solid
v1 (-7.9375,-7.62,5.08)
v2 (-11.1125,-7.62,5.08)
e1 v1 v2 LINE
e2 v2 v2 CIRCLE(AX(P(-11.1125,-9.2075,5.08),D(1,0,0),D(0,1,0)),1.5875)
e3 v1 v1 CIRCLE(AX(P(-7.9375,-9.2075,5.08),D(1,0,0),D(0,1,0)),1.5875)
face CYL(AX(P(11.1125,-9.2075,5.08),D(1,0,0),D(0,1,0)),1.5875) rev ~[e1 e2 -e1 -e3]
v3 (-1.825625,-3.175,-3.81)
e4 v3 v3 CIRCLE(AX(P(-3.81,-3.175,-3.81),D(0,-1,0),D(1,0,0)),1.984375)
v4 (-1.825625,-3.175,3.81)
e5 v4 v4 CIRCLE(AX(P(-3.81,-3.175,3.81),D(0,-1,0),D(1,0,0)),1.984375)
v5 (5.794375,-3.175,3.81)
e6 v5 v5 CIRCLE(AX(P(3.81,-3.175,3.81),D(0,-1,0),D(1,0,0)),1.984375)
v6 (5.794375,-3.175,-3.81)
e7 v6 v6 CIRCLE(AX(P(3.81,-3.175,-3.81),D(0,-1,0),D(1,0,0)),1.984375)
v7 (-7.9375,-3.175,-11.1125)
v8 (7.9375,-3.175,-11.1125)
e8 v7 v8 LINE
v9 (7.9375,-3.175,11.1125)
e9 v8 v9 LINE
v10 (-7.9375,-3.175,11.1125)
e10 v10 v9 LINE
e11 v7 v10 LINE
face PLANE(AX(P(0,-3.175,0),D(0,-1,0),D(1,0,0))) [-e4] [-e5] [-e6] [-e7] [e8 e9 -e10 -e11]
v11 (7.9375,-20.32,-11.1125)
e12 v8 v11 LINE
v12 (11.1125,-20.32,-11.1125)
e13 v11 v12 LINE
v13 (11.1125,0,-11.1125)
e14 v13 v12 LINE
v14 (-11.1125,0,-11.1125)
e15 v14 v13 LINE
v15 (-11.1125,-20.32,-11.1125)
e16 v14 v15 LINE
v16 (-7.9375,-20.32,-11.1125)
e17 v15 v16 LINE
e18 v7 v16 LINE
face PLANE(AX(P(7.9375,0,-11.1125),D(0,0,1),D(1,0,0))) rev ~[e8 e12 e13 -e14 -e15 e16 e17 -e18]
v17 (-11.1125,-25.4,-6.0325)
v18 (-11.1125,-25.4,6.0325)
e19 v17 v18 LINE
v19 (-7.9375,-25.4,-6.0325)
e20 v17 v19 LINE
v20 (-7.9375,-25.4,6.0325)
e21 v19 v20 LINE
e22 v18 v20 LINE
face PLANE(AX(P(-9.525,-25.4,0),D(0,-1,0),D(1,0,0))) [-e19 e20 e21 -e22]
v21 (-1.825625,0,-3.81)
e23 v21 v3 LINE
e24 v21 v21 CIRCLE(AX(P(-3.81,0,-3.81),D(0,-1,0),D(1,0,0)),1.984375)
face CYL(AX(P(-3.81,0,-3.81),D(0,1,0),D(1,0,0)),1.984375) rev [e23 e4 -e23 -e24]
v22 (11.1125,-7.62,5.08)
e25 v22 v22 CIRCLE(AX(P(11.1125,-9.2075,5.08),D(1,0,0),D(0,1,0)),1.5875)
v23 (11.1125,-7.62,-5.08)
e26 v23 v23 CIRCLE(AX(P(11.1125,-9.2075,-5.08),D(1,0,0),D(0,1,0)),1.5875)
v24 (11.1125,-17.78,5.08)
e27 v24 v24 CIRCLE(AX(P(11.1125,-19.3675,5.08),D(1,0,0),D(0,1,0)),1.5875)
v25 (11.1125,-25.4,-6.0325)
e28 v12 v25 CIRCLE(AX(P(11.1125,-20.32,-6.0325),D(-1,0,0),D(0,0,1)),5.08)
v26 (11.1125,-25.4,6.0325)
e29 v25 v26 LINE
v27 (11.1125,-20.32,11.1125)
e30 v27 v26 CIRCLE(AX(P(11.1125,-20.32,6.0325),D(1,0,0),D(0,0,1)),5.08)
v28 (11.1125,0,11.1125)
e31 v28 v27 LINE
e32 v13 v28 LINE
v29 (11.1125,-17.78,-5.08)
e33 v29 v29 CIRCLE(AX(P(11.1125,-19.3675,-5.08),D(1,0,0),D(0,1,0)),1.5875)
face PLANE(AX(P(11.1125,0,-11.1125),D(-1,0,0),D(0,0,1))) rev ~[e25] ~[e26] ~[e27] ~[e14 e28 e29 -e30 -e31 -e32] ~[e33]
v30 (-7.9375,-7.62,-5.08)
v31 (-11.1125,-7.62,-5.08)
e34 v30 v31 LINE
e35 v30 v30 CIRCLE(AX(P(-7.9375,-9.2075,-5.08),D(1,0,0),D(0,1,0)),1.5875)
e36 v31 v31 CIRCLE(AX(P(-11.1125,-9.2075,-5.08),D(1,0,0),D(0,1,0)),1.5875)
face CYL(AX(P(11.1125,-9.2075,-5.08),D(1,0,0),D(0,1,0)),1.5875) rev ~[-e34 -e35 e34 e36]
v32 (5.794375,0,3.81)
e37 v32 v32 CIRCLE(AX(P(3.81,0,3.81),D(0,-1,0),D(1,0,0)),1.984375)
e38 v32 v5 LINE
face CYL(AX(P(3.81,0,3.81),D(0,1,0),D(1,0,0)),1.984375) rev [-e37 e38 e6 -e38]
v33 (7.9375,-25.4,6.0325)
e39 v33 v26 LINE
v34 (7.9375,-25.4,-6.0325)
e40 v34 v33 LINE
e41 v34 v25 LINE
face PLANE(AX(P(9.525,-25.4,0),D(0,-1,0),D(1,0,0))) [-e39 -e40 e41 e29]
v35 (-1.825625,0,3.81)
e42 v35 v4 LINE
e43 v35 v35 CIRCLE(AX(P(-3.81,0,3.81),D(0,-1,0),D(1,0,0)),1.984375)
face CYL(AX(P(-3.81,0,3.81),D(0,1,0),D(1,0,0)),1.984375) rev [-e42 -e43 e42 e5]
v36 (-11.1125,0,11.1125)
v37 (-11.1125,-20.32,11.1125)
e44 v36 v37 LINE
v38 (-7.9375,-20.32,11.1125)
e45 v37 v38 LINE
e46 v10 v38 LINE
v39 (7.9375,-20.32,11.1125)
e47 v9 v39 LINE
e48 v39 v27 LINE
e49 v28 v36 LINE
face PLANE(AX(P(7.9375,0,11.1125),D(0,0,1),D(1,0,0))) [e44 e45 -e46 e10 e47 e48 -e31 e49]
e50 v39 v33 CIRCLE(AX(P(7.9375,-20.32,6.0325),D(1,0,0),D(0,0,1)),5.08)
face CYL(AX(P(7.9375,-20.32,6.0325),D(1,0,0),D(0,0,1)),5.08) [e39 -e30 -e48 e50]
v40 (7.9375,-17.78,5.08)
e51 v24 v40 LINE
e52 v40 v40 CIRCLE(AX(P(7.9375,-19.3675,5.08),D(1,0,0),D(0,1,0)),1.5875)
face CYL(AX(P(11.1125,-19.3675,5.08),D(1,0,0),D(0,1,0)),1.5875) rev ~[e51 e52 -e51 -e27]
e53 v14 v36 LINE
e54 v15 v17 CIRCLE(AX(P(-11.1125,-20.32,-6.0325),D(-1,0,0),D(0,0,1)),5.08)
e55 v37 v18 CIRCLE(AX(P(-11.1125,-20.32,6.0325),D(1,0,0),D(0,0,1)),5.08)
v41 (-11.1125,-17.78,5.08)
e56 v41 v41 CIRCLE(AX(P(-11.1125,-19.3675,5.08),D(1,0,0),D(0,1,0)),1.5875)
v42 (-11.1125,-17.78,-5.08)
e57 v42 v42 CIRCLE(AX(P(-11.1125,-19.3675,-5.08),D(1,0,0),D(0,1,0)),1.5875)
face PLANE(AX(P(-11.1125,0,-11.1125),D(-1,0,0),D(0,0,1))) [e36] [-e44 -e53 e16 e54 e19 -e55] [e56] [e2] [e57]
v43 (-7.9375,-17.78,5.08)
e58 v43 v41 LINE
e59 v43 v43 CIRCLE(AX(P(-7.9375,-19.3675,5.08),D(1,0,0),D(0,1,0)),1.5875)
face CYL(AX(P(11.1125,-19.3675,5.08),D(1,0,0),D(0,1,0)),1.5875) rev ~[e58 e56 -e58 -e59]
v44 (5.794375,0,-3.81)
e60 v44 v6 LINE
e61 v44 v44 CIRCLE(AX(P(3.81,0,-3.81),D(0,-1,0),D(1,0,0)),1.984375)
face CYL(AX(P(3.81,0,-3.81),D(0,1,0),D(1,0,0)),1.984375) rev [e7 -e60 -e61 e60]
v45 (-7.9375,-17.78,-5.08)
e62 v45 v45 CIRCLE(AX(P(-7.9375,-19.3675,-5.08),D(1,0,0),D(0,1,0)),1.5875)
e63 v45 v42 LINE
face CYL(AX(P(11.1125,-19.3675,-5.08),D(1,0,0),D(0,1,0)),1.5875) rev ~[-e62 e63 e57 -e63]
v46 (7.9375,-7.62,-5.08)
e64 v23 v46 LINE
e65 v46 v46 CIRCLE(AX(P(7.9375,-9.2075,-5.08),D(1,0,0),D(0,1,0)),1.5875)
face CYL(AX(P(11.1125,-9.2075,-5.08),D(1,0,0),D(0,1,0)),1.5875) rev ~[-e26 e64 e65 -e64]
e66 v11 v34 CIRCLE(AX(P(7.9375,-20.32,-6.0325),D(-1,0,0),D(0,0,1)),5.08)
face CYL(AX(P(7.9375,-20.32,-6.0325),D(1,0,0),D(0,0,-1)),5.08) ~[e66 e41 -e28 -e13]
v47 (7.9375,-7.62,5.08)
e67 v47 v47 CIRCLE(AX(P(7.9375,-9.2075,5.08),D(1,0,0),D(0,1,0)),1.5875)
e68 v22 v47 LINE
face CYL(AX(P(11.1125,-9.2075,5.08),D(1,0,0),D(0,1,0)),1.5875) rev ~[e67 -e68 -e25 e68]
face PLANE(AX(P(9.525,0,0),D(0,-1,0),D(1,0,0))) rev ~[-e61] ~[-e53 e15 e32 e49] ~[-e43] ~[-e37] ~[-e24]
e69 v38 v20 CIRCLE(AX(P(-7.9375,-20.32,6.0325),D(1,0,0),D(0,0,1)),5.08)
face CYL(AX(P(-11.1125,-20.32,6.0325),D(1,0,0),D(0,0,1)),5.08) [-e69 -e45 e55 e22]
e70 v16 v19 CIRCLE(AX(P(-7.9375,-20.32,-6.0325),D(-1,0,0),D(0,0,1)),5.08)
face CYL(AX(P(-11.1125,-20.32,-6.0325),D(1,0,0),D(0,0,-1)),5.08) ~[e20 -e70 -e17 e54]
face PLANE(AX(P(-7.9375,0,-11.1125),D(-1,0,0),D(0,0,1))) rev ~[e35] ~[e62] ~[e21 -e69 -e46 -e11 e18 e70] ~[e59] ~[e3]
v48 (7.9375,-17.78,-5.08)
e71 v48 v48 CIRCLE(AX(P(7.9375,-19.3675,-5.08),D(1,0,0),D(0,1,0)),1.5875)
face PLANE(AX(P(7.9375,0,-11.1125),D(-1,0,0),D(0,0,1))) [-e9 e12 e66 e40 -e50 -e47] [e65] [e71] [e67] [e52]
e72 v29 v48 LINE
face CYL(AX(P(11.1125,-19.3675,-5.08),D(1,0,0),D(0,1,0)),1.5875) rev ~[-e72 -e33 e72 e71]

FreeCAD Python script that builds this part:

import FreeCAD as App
import Part
import Sketcher
from FreeCAD import Vector
Q = App.Units.Quantity


def edges_at(feature, points):
    """Names of the edges that pass closest to the given points."""
    edges = feature.Shape.Edges
    near = lambda p: min(range(len(edges)), key=lambda i: edges[i].distToShape(Part.Vertex(*p))[0])
    return sorted({f"Edge{near(p) + 1}" for p in points})

doc = App.newDocument("Part")
body = doc.addObject("PartDesign::Body", "Body")

sketch1 = body.newObject("Sketcher::SketchObject", "Sketch")
sketch1.AttachmentSupport = (doc.getObject("XZ_Plane"), [""])
sketch1.MapMode = "FlatFace"
sketch1.addGeometry(Part.LineSegment(Vector(-7.9, 11.1, 0), Vector(-7.9, -11.1, 0)), False)
sketch1.addGeometry(Part.LineSegment(Vector(-7.9, -11.1, 0), Vector(7.9, -11.1, 0)), False)
sketch1.addGeometry(Part.LineSegment(Vector(7.9, -11.1, 0), Vector(7.9, 11.1, 0)), False)
sketch1.addGeometry(Part.LineSegment(Vector(7.9, 11.1, 0), Vector(-7.9, 11.1, 0)), False)
sketch1.addGeometry(Part.Circle(Vector(-3.8, -3.8, 0), Vector(0, 0, 1), 2), False)
sketch1.addGeometry(Part.Circle(Vector(3.8, -3.8, 0), Vector(0, 0, 1), 2), False)
sketch1.addGeometry(Part.Circle(Vector(-3.8, 3.8, 0), Vector(0, 0, 1), 2), False)
sketch1.addGeometry(Part.Circle(Vector(3.8, 3.8, 0), Vector(0, 0, 1), 2), False)
sketch1.addConstraint(Sketcher.Constraint("Coincident", 0, 2, 1, 1))
sketch1.addConstraint(Sketcher.Constraint("Coincident", 1, 2, 2, 1))
sketch1.addConstraint(Sketcher.Constraint("Coincident", 2, 2, 3, 1))
sketch1.addConstraint(Sketcher.Constraint("Coincident", 3, 2, 0, 1))
sketch1.addConstraint(Sketcher.Constraint("Vertical", 0))
sketch1.addConstraint(Sketcher.Constraint("Horizontal", 1))
sketch1.addConstraint(Sketcher.Constraint("Vertical", 2))
sketch1.addConstraint(Sketcher.Constraint("Horizontal", 3))
sketch1.addConstraint(Sketcher.Constraint("Equal", 4, 5))
sketch1.addConstraint(Sketcher.Constraint("Equal", 5, 6))
sketch1.addConstraint(Sketcher.Constraint("Equal", 6, 7))
sketch1.addConstraint(Sketcher.Constraint("Symmetric", 5, 3, 6, 3, -1, 1))
sketch1.addConstraint(Sketcher.Constraint("Symmetric", 4, 3, 7, 3, -1, 1))
sketch1.addConstraint(Sketcher.Constraint("Symmetric", 0, 2, 2, 2, -1, 1))
sketch1.addConstraint(Sketcher.Constraint("Symmetric", 4, 3, 5, 3, -2))
sketch1.addConstraint(Sketcher.Constraint("Diameter", 4, Q("0.15625 in")))
sketch1.addConstraint(Sketcher.Constraint("DistanceX", 4, 3, 5, 3, Q("0.3 in")))
sketch1.addConstraint(Sketcher.Constraint("DistanceY", 4, 3, 6, 3, Q("0.3 in")))
sketch1.addConstraint(Sketcher.Constraint("DistanceX", 1, 1, 1, 2, Q("0.625 in")))
sketch1.addConstraint(Sketcher.Constraint("DistanceY", 0, 2, 0, 1, Q("0.875 in")))
pad1 = body.newObject("PartDesign::Pad", "Pad")
pad1.Profile = sketch1
pad1.Length = Q("0.125 in")

sketch2 = body.newObject("Sketcher::SketchObject", "Sketch001")
sketch2.AttachmentSupport = (doc.getObject("XZ_Plane"), [""])
sketch2.MapMode = "FlatFace"
sketch2.addGeometry(Part.LineSegment(Vector(7.9, 11.1, 0), Vector(7.9, -11.1, 0)), False)
sketch2.addGeometry(Part.LineSegment(Vector(7.9, -11.1, 0), Vector(11.1, -11.1, 0)), False)
sketch2.addGeometry(Part.LineSegment(Vector(11.1, -11.1, 0), Vector(11.1, 11.1, 0)), False)
sketch2.addGeometry(Part.LineSegment(Vector(11.1, 11.1, 0), Vector(7.9, 11.1, 0)), False)
sketch2.addGeometry(Part.LineSegment(Vector(-11.1, 11.1, 0), Vector(-11.1, -11.1, 0)), False)
sketch2.addGeometry(Part.LineSegment(Vector(-11.1, -11.1, 0), Vector(-7.9, -11.1, 0)), False)
sketch2.addGeometry(Part.LineSegment(Vector(-7.9, -11.1, 0), Vector(-7.9, 11.1, 0)), False)
sketch2.addGeometry(Part.LineSegment(Vector(-7.9, 11.1, 0), Vector(-11.1, 11.1, 0)), False)
sketch2.addConstraint(Sketcher.Constraint("Coincident", 0, 2, 1, 1))
sketch2.addConstraint(Sketcher.Constraint("Coincident", 1, 2, 2, 1))
sketch2.addConstraint(Sketcher.Constraint("Coincident", 2, 2, 3, 1))
sketch2.addConstraint(Sketcher.Constraint("Coincident", 3, 2, 0, 1))
sketch2.addConstraint(Sketcher.Constraint("Coincident", 4, 2, 5, 1))
sketch2.addConstraint(Sketcher.Constraint("Coincident", 5, 2, 6, 1))
sketch2.addConstraint(Sketcher.Constraint("Coincident", 6, 2, 7, 1))
sketch2.addConstraint(Sketcher.Constraint("Coincident", 7, 2, 4, 1))
sketch2.addConstraint(Sketcher.Constraint("Vertical", 0))
sketch2.addConstraint(Sketcher.Constraint("Horizontal", 1))
sketch2.addConstraint(Sketcher.Constraint("Vertical", 2))
sketch2.addConstraint(Sketcher.Constraint("Horizontal", 3))
sketch2.addConstraint(Sketcher.Constraint("Vertical", 4))
sketch2.addConstraint(Sketcher.Constraint("Horizontal", 5))
sketch2.addConstraint(Sketcher.Constraint("Vertical", 6))
sketch2.addConstraint(Sketcher.Constraint("Horizontal", 7))
sketch2.addConstraint(Sketcher.Constraint("Symmetric", 2, 2, 4, 2, -1, 1))
sketch2.addConstraint(Sketcher.Constraint("Symmetric", 0, 2, 6, 2, -1, 1))
sketch2.addConstraint(Sketcher.Constraint("Horizontal", 1, 2, 4, 2))
sketch2.addConstraint(Sketcher.Constraint("DistanceX", 1, 1, 1, 2, Q("0.125 in")))
sketch2.addConstraint(Sketcher.Constraint("DistanceY", 0, 2, 0, 1, Q("0.875 in")))
sketch2.addConstraint(Sketcher.Constraint("DistanceX", 4, 2, 0, 2, Q("0.75 in")))
pad2 = body.newObject("PartDesign::Pad", "Pad001")
pad2.Profile = sketch2
pad2.Length = Q("1 in")

sketch3 = body.newObject("Sketcher::SketchObject", "Sketch002")
sketch3.AttachmentSupport = (doc.getObject("YZ_Plane"), [""])
sketch3.MapMode = "FlatFace"
sketch3.AttachmentOffset = App.Placement(Vector(0, 0, 0.4375 * 25.4), App.Rotation())
sketch3.addGeometry(Part.Circle(Vector(-19.4, 5.1, 0), Vector(0, 0, 1), 1.6), False)
sketch3.addGeometry(Part.Circle(Vector(-9.2, 5.1, 0), Vector(0, 0, 1), 1.6), False)
sketch3.addGeometry(Part.Circle(Vector(-9.2, -5.1, 0), Vector(0, 0, 1), 1.6), False)
sketch3.addGeometry(Part.Circle(Vector(-19.4, -5.1, 0), Vector(0, 0, 1), 1.6), False)
sketch3.addConstraint(Sketcher.Constraint("Equal", 0, 1))
sketch3.addConstraint(Sketcher.Constraint("Equal", 1, 2))
sketch3.addConstraint(Sketcher.Constraint("Equal", 2, 3))
sketch3.addConstraint(Sketcher.Constraint("Symmetric", 1, 3, 2, 3, -1))
sketch3.addConstraint(Sketcher.Constraint("Symmetric", 0, 3, 3, 3, -1))
sketch3.addConstraint(Sketcher.Constraint("Horizontal", 0, 3, 1, 3))
sketch3.addConstraint(Sketcher.Constraint("Diameter", 0, Q("0.125 in")))
sketch3.addConstraint(Sketcher.Constraint("DistanceY", -1, 1, 0, 3, Q("0.2 in")))
sketch3.addConstraint(Sketcher.Constraint("DistanceX", 0, 3, 1, 3, Q("0.4 in")))
sketch3.addConstraint(Sketcher.Constraint("DistanceX", 0, 3, -1, 1, Q("0.7625 in")))
pocket1 = body.newObject("PartDesign::Pocket", "Pocket")
pocket1.Profile = sketch3
pocket1.Type = "ThroughAll"
doc.recompute()

fillet = body.newObject("PartDesign::Fillet", "Fillet")
fillet.Base = (pocket1, edges_at(pocket1, [
    (9.525, -25.4, 11.113),
    (-9.525, -25.4, 11.113),
    (9.525, -25.4, -11.113),
    (-9.525, -25.4, -11.113),
]))
fillet.Radius = Q("0.2 in")

doc.recompute()
